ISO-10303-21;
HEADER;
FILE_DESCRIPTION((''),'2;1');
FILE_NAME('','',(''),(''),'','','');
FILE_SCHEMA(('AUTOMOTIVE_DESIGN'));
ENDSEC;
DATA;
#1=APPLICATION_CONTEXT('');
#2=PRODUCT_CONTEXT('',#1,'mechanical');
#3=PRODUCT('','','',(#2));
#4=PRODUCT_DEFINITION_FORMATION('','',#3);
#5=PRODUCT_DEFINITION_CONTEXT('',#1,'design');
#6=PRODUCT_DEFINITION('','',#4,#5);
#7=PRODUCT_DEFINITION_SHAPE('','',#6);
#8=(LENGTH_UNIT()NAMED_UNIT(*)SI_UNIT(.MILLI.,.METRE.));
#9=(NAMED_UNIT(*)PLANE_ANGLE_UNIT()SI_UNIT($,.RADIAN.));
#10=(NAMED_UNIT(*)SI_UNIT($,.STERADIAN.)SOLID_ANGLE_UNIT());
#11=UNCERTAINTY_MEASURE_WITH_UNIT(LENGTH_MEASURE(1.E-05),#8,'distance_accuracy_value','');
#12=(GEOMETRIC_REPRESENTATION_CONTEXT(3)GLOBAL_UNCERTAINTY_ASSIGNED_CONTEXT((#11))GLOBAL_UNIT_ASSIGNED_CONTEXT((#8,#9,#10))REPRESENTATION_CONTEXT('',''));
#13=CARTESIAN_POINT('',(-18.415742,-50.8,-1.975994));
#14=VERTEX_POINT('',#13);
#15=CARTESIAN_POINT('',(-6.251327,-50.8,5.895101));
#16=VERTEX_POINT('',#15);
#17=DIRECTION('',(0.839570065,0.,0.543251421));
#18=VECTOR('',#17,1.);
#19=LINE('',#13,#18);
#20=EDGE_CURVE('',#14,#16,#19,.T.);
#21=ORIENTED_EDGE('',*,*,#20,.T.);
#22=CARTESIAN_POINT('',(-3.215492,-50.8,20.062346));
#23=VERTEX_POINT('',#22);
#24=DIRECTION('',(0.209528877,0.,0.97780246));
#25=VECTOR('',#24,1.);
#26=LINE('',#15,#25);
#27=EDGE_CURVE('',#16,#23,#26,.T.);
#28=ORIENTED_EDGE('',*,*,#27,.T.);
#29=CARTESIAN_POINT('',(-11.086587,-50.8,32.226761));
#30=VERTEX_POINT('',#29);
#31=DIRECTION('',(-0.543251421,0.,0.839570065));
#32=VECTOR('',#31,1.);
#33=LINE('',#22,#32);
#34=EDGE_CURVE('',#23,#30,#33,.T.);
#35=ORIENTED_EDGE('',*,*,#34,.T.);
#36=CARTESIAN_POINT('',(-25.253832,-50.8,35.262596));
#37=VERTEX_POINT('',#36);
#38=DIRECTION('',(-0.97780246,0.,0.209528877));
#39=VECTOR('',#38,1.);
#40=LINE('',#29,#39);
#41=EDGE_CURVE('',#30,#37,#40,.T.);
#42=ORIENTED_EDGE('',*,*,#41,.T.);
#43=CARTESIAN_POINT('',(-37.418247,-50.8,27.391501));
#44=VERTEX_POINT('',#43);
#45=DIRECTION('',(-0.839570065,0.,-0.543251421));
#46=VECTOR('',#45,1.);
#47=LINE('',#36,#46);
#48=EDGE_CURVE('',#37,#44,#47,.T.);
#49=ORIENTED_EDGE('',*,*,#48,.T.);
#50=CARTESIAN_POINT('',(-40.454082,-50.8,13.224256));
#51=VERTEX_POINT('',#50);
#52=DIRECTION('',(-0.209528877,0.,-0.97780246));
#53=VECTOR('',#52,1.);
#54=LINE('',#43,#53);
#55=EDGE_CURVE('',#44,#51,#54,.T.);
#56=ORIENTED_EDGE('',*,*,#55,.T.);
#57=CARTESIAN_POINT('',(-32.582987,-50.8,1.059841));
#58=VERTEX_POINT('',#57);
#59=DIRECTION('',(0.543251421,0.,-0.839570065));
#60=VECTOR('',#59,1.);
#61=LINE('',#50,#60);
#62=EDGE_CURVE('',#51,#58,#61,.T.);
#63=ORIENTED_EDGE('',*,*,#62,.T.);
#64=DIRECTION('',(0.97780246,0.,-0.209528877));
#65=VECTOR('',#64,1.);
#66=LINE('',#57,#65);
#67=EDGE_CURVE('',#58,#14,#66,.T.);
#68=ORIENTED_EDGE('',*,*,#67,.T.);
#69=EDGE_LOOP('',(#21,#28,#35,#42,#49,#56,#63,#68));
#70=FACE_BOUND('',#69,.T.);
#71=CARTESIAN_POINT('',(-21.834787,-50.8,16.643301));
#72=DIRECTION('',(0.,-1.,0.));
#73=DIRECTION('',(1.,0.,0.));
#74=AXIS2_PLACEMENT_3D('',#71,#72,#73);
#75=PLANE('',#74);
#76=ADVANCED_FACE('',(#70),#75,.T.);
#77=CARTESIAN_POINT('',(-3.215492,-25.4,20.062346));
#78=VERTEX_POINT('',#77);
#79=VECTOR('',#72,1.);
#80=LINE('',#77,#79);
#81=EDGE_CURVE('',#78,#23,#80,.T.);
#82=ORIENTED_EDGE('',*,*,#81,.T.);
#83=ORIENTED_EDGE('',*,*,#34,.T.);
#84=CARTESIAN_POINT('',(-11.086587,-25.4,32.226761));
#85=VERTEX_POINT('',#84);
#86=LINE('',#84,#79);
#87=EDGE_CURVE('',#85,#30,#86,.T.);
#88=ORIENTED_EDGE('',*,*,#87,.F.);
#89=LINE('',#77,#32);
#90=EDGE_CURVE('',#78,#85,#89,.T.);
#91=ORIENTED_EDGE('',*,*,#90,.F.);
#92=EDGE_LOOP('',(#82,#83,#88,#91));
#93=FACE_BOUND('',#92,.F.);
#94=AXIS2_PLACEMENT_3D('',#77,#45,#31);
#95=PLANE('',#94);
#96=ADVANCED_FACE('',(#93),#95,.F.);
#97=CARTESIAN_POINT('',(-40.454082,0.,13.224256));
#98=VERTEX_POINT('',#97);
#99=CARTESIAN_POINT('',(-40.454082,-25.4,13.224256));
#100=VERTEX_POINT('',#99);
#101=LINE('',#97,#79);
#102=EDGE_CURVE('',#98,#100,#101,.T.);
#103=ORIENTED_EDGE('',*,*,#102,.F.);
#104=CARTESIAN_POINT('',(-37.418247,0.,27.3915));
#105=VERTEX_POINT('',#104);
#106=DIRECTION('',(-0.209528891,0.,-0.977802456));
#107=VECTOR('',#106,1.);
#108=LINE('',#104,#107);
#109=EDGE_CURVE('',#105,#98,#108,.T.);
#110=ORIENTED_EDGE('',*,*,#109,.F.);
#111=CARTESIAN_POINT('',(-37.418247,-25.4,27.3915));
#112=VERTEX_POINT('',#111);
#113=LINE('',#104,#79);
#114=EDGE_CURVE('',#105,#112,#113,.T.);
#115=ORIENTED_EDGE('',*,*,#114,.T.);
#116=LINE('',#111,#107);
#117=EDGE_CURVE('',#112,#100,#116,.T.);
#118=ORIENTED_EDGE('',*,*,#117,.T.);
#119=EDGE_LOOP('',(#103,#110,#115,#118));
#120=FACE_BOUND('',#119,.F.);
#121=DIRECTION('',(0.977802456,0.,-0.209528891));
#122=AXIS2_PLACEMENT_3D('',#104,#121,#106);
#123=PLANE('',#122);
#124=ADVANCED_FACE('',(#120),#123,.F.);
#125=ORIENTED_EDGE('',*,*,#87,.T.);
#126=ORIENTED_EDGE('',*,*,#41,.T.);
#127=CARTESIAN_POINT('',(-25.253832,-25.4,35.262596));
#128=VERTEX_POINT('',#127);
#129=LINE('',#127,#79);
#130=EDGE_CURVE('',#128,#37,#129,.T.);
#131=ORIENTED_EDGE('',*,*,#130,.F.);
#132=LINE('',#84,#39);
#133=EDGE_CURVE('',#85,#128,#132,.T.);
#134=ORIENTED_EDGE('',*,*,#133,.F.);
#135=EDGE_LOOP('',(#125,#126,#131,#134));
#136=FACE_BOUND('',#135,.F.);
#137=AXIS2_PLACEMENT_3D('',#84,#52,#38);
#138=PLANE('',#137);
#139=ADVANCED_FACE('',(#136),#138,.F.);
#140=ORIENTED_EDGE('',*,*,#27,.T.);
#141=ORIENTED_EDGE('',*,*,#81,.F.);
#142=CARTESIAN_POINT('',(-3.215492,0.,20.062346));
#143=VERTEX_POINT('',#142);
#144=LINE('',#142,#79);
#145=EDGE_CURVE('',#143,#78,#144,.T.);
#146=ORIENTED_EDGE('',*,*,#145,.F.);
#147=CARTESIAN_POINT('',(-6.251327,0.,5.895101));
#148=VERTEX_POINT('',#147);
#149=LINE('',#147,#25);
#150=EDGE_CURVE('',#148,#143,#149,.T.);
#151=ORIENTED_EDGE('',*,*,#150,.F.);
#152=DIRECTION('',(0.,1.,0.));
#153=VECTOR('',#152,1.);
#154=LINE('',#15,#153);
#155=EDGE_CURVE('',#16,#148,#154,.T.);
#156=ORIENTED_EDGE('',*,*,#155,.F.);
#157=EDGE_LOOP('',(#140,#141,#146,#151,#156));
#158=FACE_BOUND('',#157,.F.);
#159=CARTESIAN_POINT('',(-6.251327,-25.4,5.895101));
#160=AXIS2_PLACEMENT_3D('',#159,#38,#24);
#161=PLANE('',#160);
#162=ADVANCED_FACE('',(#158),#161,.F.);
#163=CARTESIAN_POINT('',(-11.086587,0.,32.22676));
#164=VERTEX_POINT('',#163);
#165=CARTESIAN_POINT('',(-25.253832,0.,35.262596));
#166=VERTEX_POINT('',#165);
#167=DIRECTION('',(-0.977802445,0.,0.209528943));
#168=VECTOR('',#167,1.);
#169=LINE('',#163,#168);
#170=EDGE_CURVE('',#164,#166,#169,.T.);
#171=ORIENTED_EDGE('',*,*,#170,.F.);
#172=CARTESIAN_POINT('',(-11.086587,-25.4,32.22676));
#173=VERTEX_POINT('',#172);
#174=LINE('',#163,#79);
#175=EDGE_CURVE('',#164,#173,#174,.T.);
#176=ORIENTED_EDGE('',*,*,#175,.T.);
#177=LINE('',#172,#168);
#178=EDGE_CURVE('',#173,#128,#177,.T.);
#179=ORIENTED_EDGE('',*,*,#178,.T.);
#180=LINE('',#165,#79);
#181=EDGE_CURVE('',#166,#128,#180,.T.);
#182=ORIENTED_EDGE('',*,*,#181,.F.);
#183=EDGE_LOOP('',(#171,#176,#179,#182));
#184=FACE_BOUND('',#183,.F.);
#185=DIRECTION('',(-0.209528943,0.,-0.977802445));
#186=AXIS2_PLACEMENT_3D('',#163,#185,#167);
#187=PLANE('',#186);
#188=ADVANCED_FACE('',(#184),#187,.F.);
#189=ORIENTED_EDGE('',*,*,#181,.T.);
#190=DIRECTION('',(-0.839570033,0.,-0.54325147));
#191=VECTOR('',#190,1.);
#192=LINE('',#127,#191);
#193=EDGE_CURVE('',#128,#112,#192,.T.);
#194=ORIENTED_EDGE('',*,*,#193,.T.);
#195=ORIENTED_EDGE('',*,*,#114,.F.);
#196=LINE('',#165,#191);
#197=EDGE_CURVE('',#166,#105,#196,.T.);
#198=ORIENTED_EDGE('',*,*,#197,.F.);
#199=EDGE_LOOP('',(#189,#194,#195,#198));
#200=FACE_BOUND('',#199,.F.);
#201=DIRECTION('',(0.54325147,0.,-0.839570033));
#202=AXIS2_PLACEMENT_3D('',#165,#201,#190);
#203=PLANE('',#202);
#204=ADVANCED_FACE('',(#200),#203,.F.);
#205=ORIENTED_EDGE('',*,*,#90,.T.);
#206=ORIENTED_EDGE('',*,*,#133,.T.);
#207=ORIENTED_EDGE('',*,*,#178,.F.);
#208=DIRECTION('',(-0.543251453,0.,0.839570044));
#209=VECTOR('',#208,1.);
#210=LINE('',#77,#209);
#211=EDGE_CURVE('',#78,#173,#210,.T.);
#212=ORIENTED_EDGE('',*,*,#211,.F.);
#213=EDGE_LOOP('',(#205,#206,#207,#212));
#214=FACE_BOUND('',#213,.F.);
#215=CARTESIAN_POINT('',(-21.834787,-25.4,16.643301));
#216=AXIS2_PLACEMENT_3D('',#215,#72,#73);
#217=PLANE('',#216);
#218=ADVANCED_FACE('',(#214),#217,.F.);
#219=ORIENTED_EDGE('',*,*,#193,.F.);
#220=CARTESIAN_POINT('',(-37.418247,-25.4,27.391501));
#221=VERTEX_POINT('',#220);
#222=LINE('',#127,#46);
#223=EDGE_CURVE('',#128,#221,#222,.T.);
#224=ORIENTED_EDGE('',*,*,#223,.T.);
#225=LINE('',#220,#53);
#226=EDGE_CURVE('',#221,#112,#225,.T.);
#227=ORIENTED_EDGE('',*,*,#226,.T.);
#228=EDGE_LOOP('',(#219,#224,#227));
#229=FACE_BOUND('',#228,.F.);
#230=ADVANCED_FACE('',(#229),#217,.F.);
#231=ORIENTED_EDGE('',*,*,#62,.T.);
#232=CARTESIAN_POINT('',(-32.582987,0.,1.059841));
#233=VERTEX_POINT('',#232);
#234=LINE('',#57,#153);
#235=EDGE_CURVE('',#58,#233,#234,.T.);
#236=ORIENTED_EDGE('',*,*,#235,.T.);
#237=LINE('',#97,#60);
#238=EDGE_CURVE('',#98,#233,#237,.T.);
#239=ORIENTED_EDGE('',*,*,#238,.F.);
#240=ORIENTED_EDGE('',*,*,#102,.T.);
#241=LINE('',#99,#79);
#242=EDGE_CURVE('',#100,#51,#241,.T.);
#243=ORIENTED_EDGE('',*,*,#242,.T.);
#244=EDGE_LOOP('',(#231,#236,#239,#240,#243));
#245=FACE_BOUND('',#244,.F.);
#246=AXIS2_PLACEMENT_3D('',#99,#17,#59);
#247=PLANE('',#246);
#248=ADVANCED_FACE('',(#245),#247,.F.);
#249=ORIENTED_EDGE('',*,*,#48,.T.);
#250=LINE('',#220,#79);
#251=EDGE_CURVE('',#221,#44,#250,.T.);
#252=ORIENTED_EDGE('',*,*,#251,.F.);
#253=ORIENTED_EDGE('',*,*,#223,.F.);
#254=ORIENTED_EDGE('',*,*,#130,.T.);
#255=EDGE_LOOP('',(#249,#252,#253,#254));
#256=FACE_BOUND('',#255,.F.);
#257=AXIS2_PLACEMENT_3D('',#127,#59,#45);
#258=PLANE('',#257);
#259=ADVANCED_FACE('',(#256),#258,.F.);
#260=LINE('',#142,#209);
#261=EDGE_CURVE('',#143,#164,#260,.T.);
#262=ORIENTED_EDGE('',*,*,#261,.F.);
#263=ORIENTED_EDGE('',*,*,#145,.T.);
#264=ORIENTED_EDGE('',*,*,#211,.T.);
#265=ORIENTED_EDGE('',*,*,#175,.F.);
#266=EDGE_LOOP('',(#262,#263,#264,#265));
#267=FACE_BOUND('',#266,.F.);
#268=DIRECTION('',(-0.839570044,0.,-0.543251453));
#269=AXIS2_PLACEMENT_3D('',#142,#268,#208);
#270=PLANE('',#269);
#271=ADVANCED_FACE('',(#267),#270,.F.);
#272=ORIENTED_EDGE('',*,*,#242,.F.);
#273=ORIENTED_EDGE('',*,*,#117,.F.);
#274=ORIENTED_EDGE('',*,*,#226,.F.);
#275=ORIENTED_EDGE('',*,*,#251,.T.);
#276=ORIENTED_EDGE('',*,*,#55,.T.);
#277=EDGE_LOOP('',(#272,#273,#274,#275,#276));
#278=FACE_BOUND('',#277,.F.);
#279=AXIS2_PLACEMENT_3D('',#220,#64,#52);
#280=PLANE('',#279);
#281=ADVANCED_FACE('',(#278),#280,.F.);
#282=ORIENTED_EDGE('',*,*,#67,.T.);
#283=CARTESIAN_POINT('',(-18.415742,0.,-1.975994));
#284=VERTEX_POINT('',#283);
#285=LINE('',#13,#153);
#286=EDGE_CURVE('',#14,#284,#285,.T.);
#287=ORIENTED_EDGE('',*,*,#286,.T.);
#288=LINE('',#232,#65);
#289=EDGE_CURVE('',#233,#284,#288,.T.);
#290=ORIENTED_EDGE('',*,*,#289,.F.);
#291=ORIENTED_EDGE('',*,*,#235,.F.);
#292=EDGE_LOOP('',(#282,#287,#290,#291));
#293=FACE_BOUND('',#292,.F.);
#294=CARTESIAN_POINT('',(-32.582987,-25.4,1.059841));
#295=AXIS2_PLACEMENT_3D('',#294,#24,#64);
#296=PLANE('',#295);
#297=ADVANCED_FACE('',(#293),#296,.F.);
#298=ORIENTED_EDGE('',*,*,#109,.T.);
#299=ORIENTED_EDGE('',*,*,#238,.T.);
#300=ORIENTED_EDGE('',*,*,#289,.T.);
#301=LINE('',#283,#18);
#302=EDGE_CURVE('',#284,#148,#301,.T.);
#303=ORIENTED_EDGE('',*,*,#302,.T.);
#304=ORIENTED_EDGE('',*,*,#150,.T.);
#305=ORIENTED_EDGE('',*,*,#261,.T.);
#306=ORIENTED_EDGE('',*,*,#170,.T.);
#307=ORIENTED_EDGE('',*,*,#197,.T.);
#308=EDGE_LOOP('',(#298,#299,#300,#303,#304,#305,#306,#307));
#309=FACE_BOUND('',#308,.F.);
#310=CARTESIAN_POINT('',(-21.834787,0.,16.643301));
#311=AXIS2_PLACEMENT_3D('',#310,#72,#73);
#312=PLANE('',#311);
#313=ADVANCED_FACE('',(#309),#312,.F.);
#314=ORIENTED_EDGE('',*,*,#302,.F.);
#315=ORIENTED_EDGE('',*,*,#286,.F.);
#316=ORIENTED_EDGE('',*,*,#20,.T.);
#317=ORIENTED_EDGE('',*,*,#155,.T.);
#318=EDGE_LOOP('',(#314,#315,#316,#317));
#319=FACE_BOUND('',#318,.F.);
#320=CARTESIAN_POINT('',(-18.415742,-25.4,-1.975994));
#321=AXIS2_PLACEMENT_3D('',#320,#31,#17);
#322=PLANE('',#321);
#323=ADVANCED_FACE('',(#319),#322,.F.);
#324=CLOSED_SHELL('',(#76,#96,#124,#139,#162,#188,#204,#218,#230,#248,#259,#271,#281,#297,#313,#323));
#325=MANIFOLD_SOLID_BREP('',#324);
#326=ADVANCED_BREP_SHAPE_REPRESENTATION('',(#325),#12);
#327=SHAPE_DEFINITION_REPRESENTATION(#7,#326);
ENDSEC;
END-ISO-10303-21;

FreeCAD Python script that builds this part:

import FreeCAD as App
import Part
import Sketcher

V = App.Vector
Q = App.Units.Quantity


def add_polygon(sketch, points):
    """Adds a closed chain of lines whose ends are joined by coincident constraints."""
    first, n = sketch.GeometryCount, len(points)
    for a, b in zip(points, points[1:] + points[:1]):
        sketch.addGeometry(Part.LineSegment(App.Vector(*a, 0), App.Vector(*b, 0)), False)
    for i in range(n):
        sketch.addConstraint(Sketcher.Constraint("Coincident", first + i, 2, first + (i + 1) % n, 1))

doc = App.newDocument("Part")
body = doc.addObject("PartDesign::Body", "Body")

sketch1 = doc.addObject("Sketcher::SketchObject", "Sketch")
body.addObject(sketch1)
sketch1.AttachmentSupport = (doc.XZ_Plane, [""])
sketch1.MapMode = "FlatFace"
add_polygon(sketch1, [(-11.086587, 32.22676), (-25.253832, 35.262596), (-37.418247, 27.3915), (-40.454082, 13.224256), (-32.582987, 1.059841), (-18.415742, -1.975994), (-6.251327, 5.895101), (-3.215492, 20.062346)])
sketch1.addConstraint(Sketcher.Constraint("Perpendicular", 0, 2))
sketch1.addConstraint(Sketcher.Constraint("Perpendicular", 1, 3))
sketch1.addConstraint(Sketcher.Constraint("Perpendicular", 2, 4))
sketch1.addConstraint(Sketcher.Constraint("Perpendicular", 3, 5))
sketch1.addConstraint(Sketcher.Constraint("Perpendicular", 4, 6))
sketch1.addConstraint(Sketcher.Constraint("Perpendicular", 5, 7))
sketch1.addConstraint(Sketcher.Constraint("Equal", 0, 1))
sketch1.addConstraint(Sketcher.Constraint("Equal", 1, 2))
sketch1.addConstraint(Sketcher.Constraint("Equal", 2, 3))
sketch1.addConstraint(Sketcher.Constraint("Equal", 3, 4))
sketch1.addConstraint(Sketcher.Constraint("Equal", 4, 5))
sketch1.addConstraint(Sketcher.Constraint("DistanceY", -1, 1, 1, 2, Q("27.3915 mm")))
sketch1.addConstraint(Sketcher.Constraint("DistanceY", -1, 1, 5, 2, Q("5.895101 mm")))
sketch1.addConstraint(Sketcher.Constraint("Distance", 2, Q("14.488861 mm")))
sketch1.addConstraint(Sketcher.Constraint("DistanceX", 0, 2, -1, 1, Q("25.253832 mm")))
sketch1.addConstraint(Sketcher.Constraint("DistanceY", -1, 1, 3, 2, Q("1.059841 mm")))
pad1 = doc.addObject("PartDesign::Pad", "Pad")
body.addObject(pad1)
pad1.Profile = sketch1
pad1.Length = Q("1 in")

sketch2 = doc.addObject("Sketcher::SketchObject", "Sketch001")
body.addObject(sketch2)
sketch2.AttachmentSupport = (doc.XZ_Plane, [""])
sketch2.MapMode = "FlatFace"
sketch2.AttachmentOffset = App.Placement(V(0, 0, 1 * 25.4), App.Rotation())
add_polygon(sketch2, [(-6.251327, 5.895101), (-3.215492, 20.062346), (-11.086587, 32.226761), (-25.253832, 35.262596), (-37.418247, 27.391501), (-40.454082, 13.224256), (-32.582987, 1.059841), (-18.415742, -1.975994)])
sketch2.addConstraint(Sketcher.Constraint("Perpendicular", 0, 2))
sketch2.addConstraint(Sketcher.Constraint("Perpendicular", 1, 3))
sketch2.addConstraint(Sketcher.Constraint("Perpendicular", 2, 4))
sketch2.addConstraint(Sketcher.Constraint("Perpendicular", 3, 5))
sketch2.addConstraint(Sketcher.Constraint("Perpendicular", 4, 6))
sketch2.addConstraint(Sketcher.Constraint("Perpendicular", 5, 7))
sketch2.addConstraint(Sketcher.Constraint("Equal", 0, 1))
sketch2.addConstraint(Sketcher.Constraint("Equal", 1, 2))
sketch2.addConstraint(Sketcher.Constraint("Equal", 2, 3))
sketch2.addConstraint(Sketcher.Constraint("Equal", 3, 4))
sketch2.addConstraint(Sketcher.Constraint("Equal", 4, 5))
sketch2.addConstraint(Sketcher.Constraint("DistanceY", -1, 1, 3, 2, Q("27.391501 mm")))
sketch2.addConstraint(Sketcher.Constraint("DistanceY", -1, 1, 7, 2, Q("5.895101 mm")))
sketch2.addConstraint(Sketcher.Constraint("DistanceX", 0, 2, -1, 1, Q("3.215492 mm")))
sketch2.addConstraint(Sketcher.Constraint("DistanceY", -1, 1, 1, 2, Q("32.226761 mm")))
sketch2.addConstraint(Sketcher.Constraint("DistanceX", 2, 2, -1, 1, Q("25.253832 mm")))
pad2 = doc.addObject("PartDesign::Pad", "Pad001")
body.addObject(pad2)
pad2.Profile = sketch2
pad2.Length = Q("1 in")

doc.recompute()
